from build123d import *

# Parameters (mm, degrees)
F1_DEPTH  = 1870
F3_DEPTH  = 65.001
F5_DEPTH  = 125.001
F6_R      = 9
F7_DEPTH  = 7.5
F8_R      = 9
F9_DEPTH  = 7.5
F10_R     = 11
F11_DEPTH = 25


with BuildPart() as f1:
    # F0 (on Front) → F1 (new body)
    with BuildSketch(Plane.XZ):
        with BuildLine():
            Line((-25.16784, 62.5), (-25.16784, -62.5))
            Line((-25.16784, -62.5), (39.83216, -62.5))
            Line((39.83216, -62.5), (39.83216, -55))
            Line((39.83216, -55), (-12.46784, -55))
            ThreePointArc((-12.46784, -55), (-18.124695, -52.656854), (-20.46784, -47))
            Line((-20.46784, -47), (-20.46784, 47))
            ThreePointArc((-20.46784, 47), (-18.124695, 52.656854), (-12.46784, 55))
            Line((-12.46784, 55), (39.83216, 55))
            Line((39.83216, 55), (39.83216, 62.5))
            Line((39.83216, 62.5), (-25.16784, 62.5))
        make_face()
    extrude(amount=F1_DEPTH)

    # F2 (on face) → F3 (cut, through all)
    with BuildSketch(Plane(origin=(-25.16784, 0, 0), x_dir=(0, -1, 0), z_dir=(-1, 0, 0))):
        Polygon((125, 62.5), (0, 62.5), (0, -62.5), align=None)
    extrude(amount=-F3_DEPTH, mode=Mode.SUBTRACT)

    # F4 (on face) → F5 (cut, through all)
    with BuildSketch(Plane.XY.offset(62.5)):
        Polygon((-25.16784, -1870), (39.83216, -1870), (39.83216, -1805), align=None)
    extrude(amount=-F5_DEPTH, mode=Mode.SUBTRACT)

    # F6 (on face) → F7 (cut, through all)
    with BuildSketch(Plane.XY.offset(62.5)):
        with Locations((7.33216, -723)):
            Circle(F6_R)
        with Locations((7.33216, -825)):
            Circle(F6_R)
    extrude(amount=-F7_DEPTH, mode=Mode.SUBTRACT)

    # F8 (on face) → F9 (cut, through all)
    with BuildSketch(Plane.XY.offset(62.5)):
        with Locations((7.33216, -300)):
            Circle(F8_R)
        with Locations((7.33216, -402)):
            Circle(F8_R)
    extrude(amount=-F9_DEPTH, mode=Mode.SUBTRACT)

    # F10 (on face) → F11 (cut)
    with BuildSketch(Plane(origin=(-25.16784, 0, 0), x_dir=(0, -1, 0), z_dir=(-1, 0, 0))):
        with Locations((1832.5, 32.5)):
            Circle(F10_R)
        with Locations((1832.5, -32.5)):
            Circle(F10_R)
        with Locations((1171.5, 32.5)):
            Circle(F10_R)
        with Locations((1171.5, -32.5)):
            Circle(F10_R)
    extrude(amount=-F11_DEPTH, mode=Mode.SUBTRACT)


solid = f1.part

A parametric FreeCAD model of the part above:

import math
import FreeCAD as App
import Part
import Sketcher
Q = App.Units.Quantity


def add_polygon(sketch, points):
    """Adds a closed chain of lines whose ends are joined by coincident constraints."""
    first, n = sketch.GeometryCount, len(points)
    for a, b in zip(points, points[1:] + points[:1]):
        sketch.addGeometry(Part.LineSegment(App.Vector(*a, 0), App.Vector(*b, 0)), False)
    for i in range(n):
        sketch.addConstraint(Sketcher.Constraint("Coincident", first + i, 2, first + (i + 1) % n, 1))

doc = App.newDocument("Part")
params = doc.addObject("Spreadsheet::Sheet", "Params")
for row, (alias, value) in enumerate([
    ("sketch1_radius", "7.999999 mm"),
    ("sketch1_width", "65 mm"),
    ("sketch1_height", "125 mm"),
    ("sketch1_height2", "94 mm"),
    ("sketch1_width2", "52.3 mm"),
    ("pad1_length", "1870 mm"),
    ("sketch2_width", "125 mm"),
    ("sketch3_width", "65 mm"),
    ("sketch4_diameter", "18 mm"),
    ("pocket3_length", "7.5 mm"),
    ("sketch5_diameter", "18 mm"),
    ("pocket4_length", "7.5 mm"),
    ("sketch6_diameter", "22 mm"),
    ("pocket5_length", "25 mm"),
], start=1):
    params.set(f"A{row}", alias)
    params.set(f"B{row}", "=" + value)
    params.setAlias(f"B{row}", alias)

body = doc.addObject("PartDesign::Body", "Body")

# Sketch on XZ plane
sketch1 = body.newObject("Sketcher::SketchObject", "Sketch")
sketch1.AttachmentSupport = (doc.getObject("XZ_Plane"), [""])
sketch1.MapMode = "FlatFace"
sketch1.addGeometry([
    Part.LineSegment(App.Vector(-25, 62, 0), App.Vector(-25, -62, 0)),  # 0
    Part.LineSegment(App.Vector(-25, -62, 0), App.Vector(40, -62, 0)),  # 1
    Part.LineSegment(App.Vector(40, -62, 0), App.Vector(40, -55, 0)),  # 2
    Part.LineSegment(App.Vector(40, -55, 0), App.Vector(-12, -55, 0)),  # 3
    Part.ArcOfCircle(Part.Circle(App.Vector(-12, -47, 0), App.Vector(0, 0, 1), 8), math.radians(180), math.radians(270)),  # 4
    Part.LineSegment(App.Vector(-20, -47, 0), App.Vector(-20, 47, 0)),  # 5
    Part.ArcOfCircle(Part.Circle(App.Vector(-12, 47, 0), App.Vector(0, 0, 1), 8), math.radians(90), math.radians(180)),  # 6
    Part.LineSegment(App.Vector(-12, 55, 0), App.Vector(40, 55, 0)),  # 7
    Part.LineSegment(App.Vector(40, 55, 0), App.Vector(40, 62, 0)),  # 8
    Part.LineSegment(App.Vector(40, 62, 0), App.Vector(-25, 62, 0)),  # 9
], False)
sketch1.addConstraint([
    Sketcher.Constraint("Coincident", 0, 2, 1, 1),
    Sketcher.Constraint("Coincident", 1, 2, 2, 1),
    Sketcher.Constraint("Coincident", 2, 2, 3, 1),
    Sketcher.Constraint("Tangent", 3, 2, 4, 2),
    Sketcher.Constraint("Tangent", 4, 1, 5, 1),
    Sketcher.Constraint("Tangent", 5, 2, 6, 2),
    Sketcher.Constraint("Tangent", 6, 1, 7, 1),
    Sketcher.Constraint("Coincident", 7, 2, 8, 1),
    Sketcher.Constraint("Coincident", 8, 2, 9, 1),
    Sketcher.Constraint("Coincident", 9, 2, 0, 1),
    Sketcher.Constraint("Vertical", 0),
    Sketcher.Constraint("Horizontal", 1),
    Sketcher.Constraint("Vertical", 2),
    Sketcher.Constraint("Horizontal", 3),
    Sketcher.Constraint("Vertical", 5),
    Sketcher.Constraint("Horizontal", 7),
    Sketcher.Constraint("Vertical", 8),
    Sketcher.Constraint("Horizontal", 9),
    Sketcher.Constraint("Equal", 4, 6),
    Sketcher.Constraint("Symmetric", 2, 2, 7, 2, -1),
    Sketcher.Constraint("Equal", 2, 8),
    Sketcher.Constraint("Radius", 4, Q("7.999999 mm")),
    Sketcher.Constraint("DistanceX", 1, 1, 1, 2, Q("65 mm")),
    Sketcher.Constraint("DistanceY", 0, 2, 0, 1, Q("125 mm")),
    Sketcher.Constraint("DistanceY", 5, 1, 5, 2, Q("94 mm")),
    Sketcher.Constraint("DistanceX", 3, 2, 3, 1, Q("52.3 mm")),
    Sketcher.Constraint("DistanceX", 4, 3, -1, 1, Q("12.467841 mm")),
])
sketch1.setExpression("Constraints[21]", "Params.sketch1_radius")
sketch1.setExpression("Constraints[22]", "Params.sketch1_width")
sketch1.setExpression("Constraints[23]", "Params.sketch1_height")
sketch1.setExpression("Constraints[24]", "Params.sketch1_height2")
sketch1.setExpression("Constraints[25]", "Params.sketch1_width2")
pad1 = body.newObject("PartDesign::Pad", "Pad")
pad1.Profile = sketch1
pad1.setExpression("Length", "Params.pad1_length")

# Sketch on YZ plane
sketch2 = body.newObject("Sketcher::SketchObject", "Sketch001")
sketch2.AttachmentSupport = (doc.getObject("YZ_Plane"), [""])
sketch2.MapMode = "FlatFace"
sketch2.AttachmentOffset = App.Placement(App.Vector(0, 0, -25.16784), App.Rotation())
add_polygon(sketch2, [(-125, 62), (0, 62), (0, -62)])  # lines 0-2
sketch2.addConstraint([
    Sketcher.Constraint("Horizontal", 0),
    Sketcher.Constraint("Vertical", 1),
    Sketcher.Constraint("Symmetric", 0, 2, 1, 2, -1, 1),
    Sketcher.Constraint("Equal", 0, 1),
    Sketcher.Constraint("DistanceX", 0, 1, 0, 2, Q("125 mm")),
])
sketch2.setExpression("Constraints[7]", "Params.sketch2_width")
pocket1 = body.newObject("PartDesign::Pocket", "Pocket")
pocket1.Profile = sketch2
pocket1.Type = "ThroughAll"
pocket1.Reversed = True

# Sketch on XY plane
sketch3 = body.newObject("Sketcher::SketchObject", "Sketch002")
sketch3.AttachmentSupport = (doc.getObject("XY_Plane"), [""])
sketch3.MapMode = "FlatFace"
sketch3.AttachmentOffset = App.Placement(App.Vector(0, 0, 62.5), App.Rotation())
add_polygon(sketch3, [(-25, -1870), (40, -1870), (40, -1805)])  # lines 0-2
sketch3.addConstraint([
    Sketcher.Constraint("Horizontal", 0),
    Sketcher.Constraint("Vertical", 1),
    Sketcher.Constraint("Equal", 0, 1),
    Sketcher.Constraint("DistanceX", 0, 1, 0, 2, Q("65 mm")),
    Sketcher.Constraint("DistanceY", 0, 2, -1, 1, Q("1870 mm")),
    Sketcher.Constraint("DistanceX", -1, 1, 0, 2, Q("39.83216 mm")),
])
sketch3.setExpression("Constraints[6]", "Params.sketch3_width")
pocket2 = body.newObject("PartDesign::Pocket", "Pocket001")
pocket2.Profile = sketch3
pocket2.Type = "ThroughAll"

# Sketch on XY plane
sketch4 = body.newObject("Sketcher::SketchObject", "Sketch003")
sketch4.AttachmentSupport = (doc.getObject("XY_Plane"), [""])
sketch4.MapMode = "FlatFace"
sketch4.AttachmentOffset = App.Placement(App.Vector(0, 0, 62.5), App.Rotation())
sketch4.addGeometry([
    Part.Circle(App.Vector(7, -723, 0), App.Vector(0, 0, 1), 9),
    Part.Circle(App.Vector(7, -825, 0), App.Vector(0, 0, 1), 9),
], False)
sketch4.addConstraint([
    Sketcher.Constraint("Equal", 0, 1),
    Sketcher.Constraint("Vertical", 0, 3, 1, 3),
    Sketcher.Constraint("Diameter", 0, Q("18 mm")),
    Sketcher.Constraint("DistanceY", 0, 3, -1, 1, Q("723 mm")),
    Sketcher.Constraint("DistanceY", 1, 3, -1, 1, Q("825 mm")),
    Sketcher.Constraint("DistanceX", -1, 1, 0, 3, Q("7.33216 mm")),
])
sketch4.setExpression("Constraints[2]", "Params.sketch4_diameter")
pocket3 = body.newObject("PartDesign::Pocket", "Pocket002")
pocket3.Profile = sketch4
pocket3.setExpression("Length", "Params.pocket3_length")

# Sketch on XY plane
sketch5 = body.newObject("Sketcher::SketchObject", "Sketch004")
sketch5.AttachmentSupport = (doc.getObject("XY_Plane"), [""])
sketch5.MapMode = "FlatFace"
sketch5.AttachmentOffset = App.Placement(App.Vector(0, 0, 62.5), App.Rotation())
sketch5.addGeometry([
    Part.Circle(App.Vector(7, -300, 0), App.Vector(0, 0, 1), 9),
    Part.Circle(App.Vector(7, -402, 0), App.Vector(0, 0, 1), 9),
], False)
sketch5.addConstraint([
    Sketcher.Constraint("Equal", 0, 1),
    Sketcher.Constraint("Vertical", 0, 3, 1, 3),
    Sketcher.Constraint("Diameter", 0, Q("18 mm")),
    Sketcher.Constraint("DistanceY", 0, 3, -1, 1, Q("300 mm")),
    Sketcher.Constraint("DistanceY", 1, 3, -1, 1, Q("402 mm")),
    Sketcher.Constraint("DistanceX", -1, 1, 0, 3, Q("7.33216 mm")),
])
sketch5.setExpression("Constraints[2]", "Params.sketch5_diameter")
pocket4 = body.newObject("PartDesign::Pocket", "Pocket003")
pocket4.Profile = sketch5
pocket4.setExpression("Length", "Params.pocket4_length")

# Sketch on YZ plane
sketch6 = body.newObject("Sketcher::SketchObject", "Sketch005")
sketch6.AttachmentSupport = (doc.getObject("YZ_Plane"), [""])
sketch6.MapMode = "FlatFace"
sketch6.AttachmentOffset = App.Placement(App.Vector(0, 0, -25.16784), App.Rotation())
sketch6.addGeometry([
    Part.Circle(App.Vector(-1832, 32, 0), App.Vector(0, 0, 1), 11),
    Part.Circle(App.Vector(-1832, -32, 0), App.Vector(0, 0, 1), 11),
    Part.Circle(App.Vector(-1172, 32, 0), App.Vector(0, 0, 1), 11),
    Part.Circle(App.Vector(-1172, -32, 0), App.Vector(0, 0, 1), 11),
], False)
sketch6.addConstraint([
    Sketcher.Constraint("Equal", 0, 1),
    Sketcher.Constraint("Equal", 1, 2),
    Sketcher.Constraint("Equal", 2, 3),
    Sketcher.Constraint("Symmetric", 0, 3, 1, 3, -1),
    Sketcher.Constraint("Symmetric", 2, 3, 3, 3, -1),
    Sketcher.Constraint("Horizontal", 0, 3, 2, 3),
    Sketcher.Constraint("Diameter", 0, Q("22 mm")),
    Sketcher.Constraint("DistanceY", 1, 3, 0, 3, Q("65 mm")),
    Sketcher.Constraint("DistanceX", 0, 3, 2, 3, Q("661 mm")),
    Sketcher.Constraint("DistanceX", 0, 3, -1, 1, Q("1832.5 mm")),
])
sketch6.setExpression("Constraints[6]", "Params.sketch6_diameter")
pocket5 = body.newObject("PartDesign::Pocket", "Pocket004")
pocket5.Profile = sketch6
pocket5.setExpression("Length", "Params.pocket5_length")
pocket5.Reversed = True

doc.recompute()
